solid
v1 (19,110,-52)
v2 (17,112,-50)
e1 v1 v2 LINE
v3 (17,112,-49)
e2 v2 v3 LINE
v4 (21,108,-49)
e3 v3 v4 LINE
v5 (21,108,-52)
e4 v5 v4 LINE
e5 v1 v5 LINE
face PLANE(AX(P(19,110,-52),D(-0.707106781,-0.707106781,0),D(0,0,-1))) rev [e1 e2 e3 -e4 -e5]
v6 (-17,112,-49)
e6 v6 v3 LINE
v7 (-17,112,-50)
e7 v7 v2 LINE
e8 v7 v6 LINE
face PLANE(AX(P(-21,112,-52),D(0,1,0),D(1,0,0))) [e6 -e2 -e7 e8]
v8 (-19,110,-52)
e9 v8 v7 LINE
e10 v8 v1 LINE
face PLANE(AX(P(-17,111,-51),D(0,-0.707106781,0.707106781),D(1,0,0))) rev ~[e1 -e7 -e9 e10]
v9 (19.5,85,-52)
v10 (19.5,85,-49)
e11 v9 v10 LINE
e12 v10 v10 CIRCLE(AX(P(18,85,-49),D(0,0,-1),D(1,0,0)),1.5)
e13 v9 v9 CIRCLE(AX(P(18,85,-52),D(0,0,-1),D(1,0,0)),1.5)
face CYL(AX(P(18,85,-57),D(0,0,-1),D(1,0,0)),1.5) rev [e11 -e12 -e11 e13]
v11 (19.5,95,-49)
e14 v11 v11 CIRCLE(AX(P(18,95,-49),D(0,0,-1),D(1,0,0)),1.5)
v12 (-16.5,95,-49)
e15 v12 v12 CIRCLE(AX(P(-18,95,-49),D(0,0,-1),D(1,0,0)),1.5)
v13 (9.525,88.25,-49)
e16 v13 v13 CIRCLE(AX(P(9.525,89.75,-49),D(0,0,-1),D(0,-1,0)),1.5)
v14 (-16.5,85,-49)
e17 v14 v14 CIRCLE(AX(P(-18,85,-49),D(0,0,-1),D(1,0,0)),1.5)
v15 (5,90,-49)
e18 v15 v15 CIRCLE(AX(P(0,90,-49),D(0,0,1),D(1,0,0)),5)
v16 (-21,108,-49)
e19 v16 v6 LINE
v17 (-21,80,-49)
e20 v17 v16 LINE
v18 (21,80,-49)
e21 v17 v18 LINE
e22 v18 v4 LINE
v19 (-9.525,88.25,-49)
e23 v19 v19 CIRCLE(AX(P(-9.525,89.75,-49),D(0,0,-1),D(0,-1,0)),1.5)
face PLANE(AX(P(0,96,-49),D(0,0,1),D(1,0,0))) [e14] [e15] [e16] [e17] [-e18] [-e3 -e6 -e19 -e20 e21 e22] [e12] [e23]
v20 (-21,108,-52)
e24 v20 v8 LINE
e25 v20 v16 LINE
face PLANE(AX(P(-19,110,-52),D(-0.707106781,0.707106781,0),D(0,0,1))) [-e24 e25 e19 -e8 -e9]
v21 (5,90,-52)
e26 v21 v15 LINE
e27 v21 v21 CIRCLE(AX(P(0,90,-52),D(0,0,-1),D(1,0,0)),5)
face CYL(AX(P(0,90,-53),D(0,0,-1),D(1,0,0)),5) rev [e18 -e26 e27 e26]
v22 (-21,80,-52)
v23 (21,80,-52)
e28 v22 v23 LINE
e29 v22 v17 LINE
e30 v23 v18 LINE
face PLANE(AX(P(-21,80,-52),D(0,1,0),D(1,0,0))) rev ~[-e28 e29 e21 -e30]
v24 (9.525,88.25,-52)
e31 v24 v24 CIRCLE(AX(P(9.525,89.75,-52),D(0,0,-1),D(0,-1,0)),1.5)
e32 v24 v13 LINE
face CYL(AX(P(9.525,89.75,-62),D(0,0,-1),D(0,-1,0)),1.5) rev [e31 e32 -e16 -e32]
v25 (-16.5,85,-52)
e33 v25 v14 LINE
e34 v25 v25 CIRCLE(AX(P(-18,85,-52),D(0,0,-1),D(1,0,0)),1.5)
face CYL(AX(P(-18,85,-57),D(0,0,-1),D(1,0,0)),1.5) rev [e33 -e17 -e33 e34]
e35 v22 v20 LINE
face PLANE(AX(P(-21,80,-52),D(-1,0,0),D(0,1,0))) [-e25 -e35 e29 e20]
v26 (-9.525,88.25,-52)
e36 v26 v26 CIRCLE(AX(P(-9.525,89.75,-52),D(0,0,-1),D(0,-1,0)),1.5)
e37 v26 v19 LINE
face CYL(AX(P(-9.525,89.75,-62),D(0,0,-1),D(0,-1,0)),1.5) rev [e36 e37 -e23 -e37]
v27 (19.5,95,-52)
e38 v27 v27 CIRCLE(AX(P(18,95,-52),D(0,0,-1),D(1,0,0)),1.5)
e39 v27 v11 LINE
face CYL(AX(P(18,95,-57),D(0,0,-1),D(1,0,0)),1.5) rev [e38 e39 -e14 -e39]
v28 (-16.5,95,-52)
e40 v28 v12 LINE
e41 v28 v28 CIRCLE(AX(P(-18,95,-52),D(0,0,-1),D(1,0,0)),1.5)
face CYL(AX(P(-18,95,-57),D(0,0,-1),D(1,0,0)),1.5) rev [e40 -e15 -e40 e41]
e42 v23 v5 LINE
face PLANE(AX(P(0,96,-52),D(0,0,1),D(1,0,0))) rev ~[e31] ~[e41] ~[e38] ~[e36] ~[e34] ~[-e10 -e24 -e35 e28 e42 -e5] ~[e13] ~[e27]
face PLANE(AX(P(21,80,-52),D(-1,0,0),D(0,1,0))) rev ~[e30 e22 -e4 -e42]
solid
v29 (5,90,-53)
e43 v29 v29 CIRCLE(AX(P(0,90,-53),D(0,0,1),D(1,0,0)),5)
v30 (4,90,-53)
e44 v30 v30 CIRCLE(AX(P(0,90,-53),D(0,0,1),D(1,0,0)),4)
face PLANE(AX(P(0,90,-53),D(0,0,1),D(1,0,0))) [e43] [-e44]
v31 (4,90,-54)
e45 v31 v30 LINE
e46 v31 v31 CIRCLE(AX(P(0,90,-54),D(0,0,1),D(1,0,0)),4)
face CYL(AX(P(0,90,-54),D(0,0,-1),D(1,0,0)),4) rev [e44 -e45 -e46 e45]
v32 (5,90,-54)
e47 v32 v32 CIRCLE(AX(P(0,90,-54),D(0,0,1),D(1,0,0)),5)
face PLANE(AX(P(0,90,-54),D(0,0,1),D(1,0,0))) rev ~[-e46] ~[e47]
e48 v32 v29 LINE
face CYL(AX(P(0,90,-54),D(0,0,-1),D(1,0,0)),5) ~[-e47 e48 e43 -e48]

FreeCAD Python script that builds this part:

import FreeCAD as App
import Part
import Sketcher

V = App.Vector


def edges_at(feature, points):
    """Names of the edges that pass closest to the given points."""
    edges = feature.Shape.Edges
    near = lambda p: min(range(len(edges)), key=lambda i: edges[i].distToShape(Part.Vertex(*p))[0])
    return sorted({f"Edge{near(p) + 1}" for p in points})


def add_polygon(sketch, points):
    """Adds a closed chain of lines whose ends are joined by coincident constraints."""
    first, n = sketch.GeometryCount, len(points)
    for a, b in zip(points, points[1:] + points[:1]):
        sketch.addGeometry(Part.LineSegment(App.Vector(*a, 0), App.Vector(*b, 0)), False)
    for i in range(n):
        sketch.addConstraint(Sketcher.Constraint("Coincident", first + i, 2, first + (i + 1) % n, 1))

doc = App.newDocument("Part")
body = doc.addObject("PartDesign::Body", "Body")

# Sketch on XY plane
sketch1 = body.newObject("Sketcher::SketchObject", "Sketch")
sketch1.AttachmentSupport = (doc.getObject("XY_Plane"), [""])
sketch1.MapMode = "FlatFace"
sketch1.AttachmentOffset = App.Placement(V(0, 0, -54), App.Rotation())
sketch1.addGeometry([
    Part.Circle(V(0, 90, 0), V(0, 0, 1), 5),
    Part.Circle(V(0, 90, 0), V(0, 0, 1), 4),
], False)
sketch1.addConstraint([
    Sketcher.Constraint("Coincident", 1, 3, 0, 3),
    Sketcher.Constraint("PointOnObject", 0, 3, -2),
    Sketcher.Constraint("Diameter", 0, 10.0),
    Sketcher.Constraint("Diameter", 1, 8.0),
    Sketcher.Constraint("DistanceY", -1, 1, 0, 3, 90.0),
])
pad1 = body.newObject("PartDesign::Pad", "Pad")
pad1.Profile = sketch1
pad1.Length = 1
body2 = doc.addObject("PartDesign::Body", "Body001")

# Sketch on XZ plane
sketch2 = body2.newObject("Sketcher::SketchObject", "Sketch001")
sketch2.AttachmentSupport = (doc.getObject("XZ_Plane001"), [""])
sketch2.MapMode = "FlatFace"
sketch2.AttachmentOffset = App.Placement(V(0, 0, -114), App.Rotation())
sketch2.addGeometry(Part.Circle(V(15.8, 58.5, 0), V(0, 0, 1), 1.5), False)
sketch2.addConstraint([
    Sketcher.Constraint("Diameter", 0, 3.0),
    Sketcher.Constraint("DistanceX", -1, 1, 0, 3, 15.75),
    Sketcher.Constraint("DistanceY", -1, 1, 0, 3, 58.525),
])
pad2 = body2.newObject("PartDesign::Pad", "Pad001")
pad2.Profile = sketch2
pad2.Length = 20
pad2.Reversed = True
body3 = doc.addObject("PartDesign::Body", "Body002")
body3.AllowCompound = True

# Sketch on XZ plane
sketch3 = body3.newObject("Sketcher::SketchObject", "Sketch002")
sketch3.AttachmentSupport = (doc.getObject("XZ_Plane002"), [""])
sketch3.MapMode = "FlatFace"
sketch3.AttachmentOffset = App.Placement(V(0, 0, -114), App.Rotation())
sketch3.addGeometry(Part.Circle(V(15.8, 39.5, 0), V(0, 0, 1), 1.5), False)
sketch3.addConstraint([
    Sketcher.Constraint("Diameter", 0, 3.0),
    Sketcher.Constraint("DistanceX", -1, 1, 0, 3, 15.75),
    Sketcher.Constraint("DistanceY", -1, 1, 0, 3, 39.475),
])
pad3 = body3.newObject("PartDesign::Pad", "Pad002")
pad3.Profile = sketch3
pad3.Length = 20
pad3.Reversed = True
doc.recompute()

boolean = body3.newObject("PartDesign::Boolean", "Boolean")
boolean.Type = "Fuse"
boolean.addObjects([body2])
body4 = doc.addObject("PartDesign::Body", "Body003")
body4.AllowCompound = True
doc.recompute()

body3.Placement = App.Placement(V(0, 0, 0), App.Rotation(V(1, 0, 0), 90))
boolean2 = body4.newObject("PartDesign::Boolean", "Boolean001")
boolean2.Type = "Fuse"
boolean2.addObjects([body3])
body5 = doc.addObject("PartDesign::Body", "Body004")
body5.AllowCompound = True
doc.recompute()

body4.Placement = App.Placement(V(-49, 0, -96), App.Rotation(V(0, 0, 1), 90))
boolean3 = body5.newObject("PartDesign::Boolean", "Boolean002")
boolean3.Type = "Fuse"
boolean3.addObjects([body4])
body6 = doc.addObject("PartDesign::Body", "Body005")
body6.AllowCompound = True
doc.recompute()

body5.Placement = App.Placement(V(0, 74, -80), App.Rotation(V(0, 0, 1), 0))
boolean4 = body6.newObject("PartDesign::Boolean", "Boolean003")
boolean4.Type = "Fuse"
boolean4.addObjects([body5])
body7 = doc.addObject("PartDesign::Body", "Body006")

# Sketch on XY plane
sketch4 = body7.newObject("Sketcher::SketchObject", "Sketch003")
sketch4.AttachmentSupport = (doc.getObject("XY_Plane006"), [""])
sketch4.MapMode = "FlatFace"
sketch4.AttachmentOffset = App.Placement(V(0, 0, -57), App.Rotation())
sketch4.addGeometry(Part.Circle(V(18, 85, 0), V(0, 0, 1), 1.5), False)
sketch4.addConstraint([
    Sketcher.Constraint("Diameter", 0, 3.0),
    Sketcher.Constraint("DistanceX", -1, 1, 0, 3, 18.0),
    Sketcher.Constraint("DistanceY", -1, 1, 0, 3, 85.0),
])
pad4 = body7.newObject("PartDesign::Pad", "Pad003")
pad4.Profile = sketch4
pad4.Length = 60
body8 = doc.addObject("PartDesign::Body", "Body007")

# Sketch on XY plane
sketch5 = body8.newObject("Sketcher::SketchObject", "Sketch004")
sketch5.AttachmentSupport = (doc.getObject("XY_Plane007"), [""])
sketch5.MapMode = "FlatFace"
sketch5.AttachmentOffset = App.Placement(V(0, 0, -57), App.Rotation())
sketch5.addGeometry(Part.Circle(V(-18, 85, 0), V(0, 0, 1), 1.5), False)
sketch5.addConstraint([
    Sketcher.Constraint("Diameter", 0, 3.0),
    Sketcher.Constraint("DistanceX", 0, 3, -1, 1, 18.0),
    Sketcher.Constraint("DistanceY", -1, 1, 0, 3, 85.0),
])
pad5 = body8.newObject("PartDesign::Pad", "Pad004")
pad5.Profile = sketch5
pad5.Length = 60
body9 = doc.addObject("PartDesign::Body", "Body008")

# Sketch on XY plane
sketch6 = body9.newObject("Sketcher::SketchObject", "Sketch005")
sketch6.AttachmentSupport = (doc.getObject("XY_Plane008"), [""])
sketch6.MapMode = "FlatFace"
sketch6.AttachmentOffset = App.Placement(V(0, 0, -57), App.Rotation())
sketch6.addGeometry(Part.Circle(V(-18, 95, 0), V(0, 0, 1), 1.5), False)
sketch6.addConstraint([
    Sketcher.Constraint("Diameter", 0, 3.0),
    Sketcher.Constraint("DistanceX", 0, 3, -1, 1, 18.0),
    Sketcher.Constraint("DistanceY", -1, 1, 0, 3, 95.0),
])
pad6 = body9.newObject("PartDesign::Pad", "Pad005")
pad6.Profile = sketch6
pad6.Length = 60
body10 = doc.addObject("PartDesign::Body", "Body009")
body10.AllowCompound = True

# Sketch on XY plane
sketch7 = body10.newObject("Sketcher::SketchObject", "Sketch006")
sketch7.AttachmentSupport = (doc.getObject("XY_Plane009"), [""])
sketch7.MapMode = "FlatFace"
sketch7.AttachmentOffset = App.Placement(V(0, 0, -57), App.Rotation())
sketch7.addGeometry(Part.Circle(V(18, 95, 0), V(0, 0, 1), 1.5), False)
sketch7.addConstraint([
    Sketcher.Constraint("Diameter", 0, 3.0),
    Sketcher.Constraint("DistanceX", -1, 1, 0, 3, 18.0),
    Sketcher.Constraint("DistanceY", -1, 1, 0, 3, 95.0),
])
pad7 = body10.newObject("PartDesign::Pad", "Pad006")
pad7.Profile = sketch7
pad7.Length = 60
doc.recompute()

boolean5 = body10.newObject("PartDesign::Boolean", "Boolean004")
boolean5.Type = "Fuse"
boolean5.addObjects([body7])
doc.recompute()

boolean6 = body10.newObject("PartDesign::Boolean", "Boolean005")
boolean6.Type = "Fuse"
boolean6.addObjects([body8])
doc.recompute()

boolean7 = body10.newObject("PartDesign::Boolean", "Boolean006")
boolean7.Type = "Fuse"
boolean7.addObjects([body9])
body11 = doc.addObject("PartDesign::Body", "Body010")

# Sketch on XY plane
sketch8 = body11.newObject("Sketcher::SketchObject", "Sketch007")
sketch8.AttachmentSupport = (doc.getObject("XY_Plane010"), [""])
sketch8.MapMode = "FlatFace"
sketch8.AttachmentOffset = App.Placement(V(0, 0, -53), App.Rotation())
sketch8.addGeometry(Part.Circle(V(0, 90, 0), V(0, 0, 1), 5), False)
sketch8.addConstraint([
    Sketcher.Constraint("PointOnObject", 0, 3, -2),
    Sketcher.Constraint("Diameter", 0, 10.0),
    Sketcher.Constraint("DistanceY", -1, 1, 0, 3, 90.0),
])
pad8 = body11.newObject("PartDesign::Pad", "Pad007")
pad8.Profile = sketch8
pad8.Length = 4
body12 = doc.addObject("PartDesign::Body", "Body011")
body12.AllowCompound = True

# Sketch on XY plane
sketch9 = body12.newObject("Sketcher::SketchObject", "Sketch008")
sketch9.AttachmentSupport = (doc.getObject("XY_Plane011"), [""])
sketch9.MapMode = "FlatFace"
sketch9.AttachmentOffset = App.Placement(V(0, 0, -52), App.Rotation())
add_polygon(sketch9, [(-21, 112), (-21, 80), (21, 80), (21, 112)])  # lines 0-3
sketch9.addConstraint([
    Sketcher.Constraint("Vertical", 0),
    Sketcher.Constraint("Horizontal", 1),
    Sketcher.Constraint("Vertical", 2),
    Sketcher.Constraint("Horizontal", 3),
    Sketcher.Constraint("DistanceX", 1, 1, 1, 2, 42.0),
    Sketcher.Constraint("DistanceY", 0, 2, 0, 1, 32.0),
    Sketcher.Constraint("DistanceX", 0, 2, -1, 1, 21.0),
    Sketcher.Constraint("DistanceY", -1, 1, 0, 2, 80.0),
])
pad9 = body12.newObject("PartDesign::Pad", "Pad008")
pad9.Profile = sketch9
pad9.Length = 3
doc.recompute()

boolean8 = body12.newObject("PartDesign::Boolean", "Boolean007")
boolean8.Type = "Cut"
boolean8.addObjects([body11])
doc.recompute()

boolean9 = body12.newObject("PartDesign::Boolean", "Boolean008")
boolean9.Type = "Cut"
boolean9.addObjects([body10])
doc.recompute()

boolean10 = body12.newObject("PartDesign::Boolean", "Boolean009")
boolean10.Type = "Cut"
boolean10.addObjects([body6])
doc.recompute()

boolean11 = body12.newObject("PartDesign::Boolean", "Boolean010")
boolean11.Type = "Fuse"
boolean11.addObjects([body])
doc.recompute()

chamfer = body12.newObject("PartDesign::Chamfer", "Chamfer")
chamfer.Base = (boolean11, edges_at(boolean11, [(-21, 112, -50.5), (21, 112, -50.5)]))
chamfer.Size = 4
doc.recompute()

chamfer2 = body12.newObject("PartDesign::Chamfer", "Chamfer001")
chamfer2.Base = (chamfer, edges_at(chamfer, [(0, 112, -52)]))
chamfer2.Size = 2

doc.recompute()
